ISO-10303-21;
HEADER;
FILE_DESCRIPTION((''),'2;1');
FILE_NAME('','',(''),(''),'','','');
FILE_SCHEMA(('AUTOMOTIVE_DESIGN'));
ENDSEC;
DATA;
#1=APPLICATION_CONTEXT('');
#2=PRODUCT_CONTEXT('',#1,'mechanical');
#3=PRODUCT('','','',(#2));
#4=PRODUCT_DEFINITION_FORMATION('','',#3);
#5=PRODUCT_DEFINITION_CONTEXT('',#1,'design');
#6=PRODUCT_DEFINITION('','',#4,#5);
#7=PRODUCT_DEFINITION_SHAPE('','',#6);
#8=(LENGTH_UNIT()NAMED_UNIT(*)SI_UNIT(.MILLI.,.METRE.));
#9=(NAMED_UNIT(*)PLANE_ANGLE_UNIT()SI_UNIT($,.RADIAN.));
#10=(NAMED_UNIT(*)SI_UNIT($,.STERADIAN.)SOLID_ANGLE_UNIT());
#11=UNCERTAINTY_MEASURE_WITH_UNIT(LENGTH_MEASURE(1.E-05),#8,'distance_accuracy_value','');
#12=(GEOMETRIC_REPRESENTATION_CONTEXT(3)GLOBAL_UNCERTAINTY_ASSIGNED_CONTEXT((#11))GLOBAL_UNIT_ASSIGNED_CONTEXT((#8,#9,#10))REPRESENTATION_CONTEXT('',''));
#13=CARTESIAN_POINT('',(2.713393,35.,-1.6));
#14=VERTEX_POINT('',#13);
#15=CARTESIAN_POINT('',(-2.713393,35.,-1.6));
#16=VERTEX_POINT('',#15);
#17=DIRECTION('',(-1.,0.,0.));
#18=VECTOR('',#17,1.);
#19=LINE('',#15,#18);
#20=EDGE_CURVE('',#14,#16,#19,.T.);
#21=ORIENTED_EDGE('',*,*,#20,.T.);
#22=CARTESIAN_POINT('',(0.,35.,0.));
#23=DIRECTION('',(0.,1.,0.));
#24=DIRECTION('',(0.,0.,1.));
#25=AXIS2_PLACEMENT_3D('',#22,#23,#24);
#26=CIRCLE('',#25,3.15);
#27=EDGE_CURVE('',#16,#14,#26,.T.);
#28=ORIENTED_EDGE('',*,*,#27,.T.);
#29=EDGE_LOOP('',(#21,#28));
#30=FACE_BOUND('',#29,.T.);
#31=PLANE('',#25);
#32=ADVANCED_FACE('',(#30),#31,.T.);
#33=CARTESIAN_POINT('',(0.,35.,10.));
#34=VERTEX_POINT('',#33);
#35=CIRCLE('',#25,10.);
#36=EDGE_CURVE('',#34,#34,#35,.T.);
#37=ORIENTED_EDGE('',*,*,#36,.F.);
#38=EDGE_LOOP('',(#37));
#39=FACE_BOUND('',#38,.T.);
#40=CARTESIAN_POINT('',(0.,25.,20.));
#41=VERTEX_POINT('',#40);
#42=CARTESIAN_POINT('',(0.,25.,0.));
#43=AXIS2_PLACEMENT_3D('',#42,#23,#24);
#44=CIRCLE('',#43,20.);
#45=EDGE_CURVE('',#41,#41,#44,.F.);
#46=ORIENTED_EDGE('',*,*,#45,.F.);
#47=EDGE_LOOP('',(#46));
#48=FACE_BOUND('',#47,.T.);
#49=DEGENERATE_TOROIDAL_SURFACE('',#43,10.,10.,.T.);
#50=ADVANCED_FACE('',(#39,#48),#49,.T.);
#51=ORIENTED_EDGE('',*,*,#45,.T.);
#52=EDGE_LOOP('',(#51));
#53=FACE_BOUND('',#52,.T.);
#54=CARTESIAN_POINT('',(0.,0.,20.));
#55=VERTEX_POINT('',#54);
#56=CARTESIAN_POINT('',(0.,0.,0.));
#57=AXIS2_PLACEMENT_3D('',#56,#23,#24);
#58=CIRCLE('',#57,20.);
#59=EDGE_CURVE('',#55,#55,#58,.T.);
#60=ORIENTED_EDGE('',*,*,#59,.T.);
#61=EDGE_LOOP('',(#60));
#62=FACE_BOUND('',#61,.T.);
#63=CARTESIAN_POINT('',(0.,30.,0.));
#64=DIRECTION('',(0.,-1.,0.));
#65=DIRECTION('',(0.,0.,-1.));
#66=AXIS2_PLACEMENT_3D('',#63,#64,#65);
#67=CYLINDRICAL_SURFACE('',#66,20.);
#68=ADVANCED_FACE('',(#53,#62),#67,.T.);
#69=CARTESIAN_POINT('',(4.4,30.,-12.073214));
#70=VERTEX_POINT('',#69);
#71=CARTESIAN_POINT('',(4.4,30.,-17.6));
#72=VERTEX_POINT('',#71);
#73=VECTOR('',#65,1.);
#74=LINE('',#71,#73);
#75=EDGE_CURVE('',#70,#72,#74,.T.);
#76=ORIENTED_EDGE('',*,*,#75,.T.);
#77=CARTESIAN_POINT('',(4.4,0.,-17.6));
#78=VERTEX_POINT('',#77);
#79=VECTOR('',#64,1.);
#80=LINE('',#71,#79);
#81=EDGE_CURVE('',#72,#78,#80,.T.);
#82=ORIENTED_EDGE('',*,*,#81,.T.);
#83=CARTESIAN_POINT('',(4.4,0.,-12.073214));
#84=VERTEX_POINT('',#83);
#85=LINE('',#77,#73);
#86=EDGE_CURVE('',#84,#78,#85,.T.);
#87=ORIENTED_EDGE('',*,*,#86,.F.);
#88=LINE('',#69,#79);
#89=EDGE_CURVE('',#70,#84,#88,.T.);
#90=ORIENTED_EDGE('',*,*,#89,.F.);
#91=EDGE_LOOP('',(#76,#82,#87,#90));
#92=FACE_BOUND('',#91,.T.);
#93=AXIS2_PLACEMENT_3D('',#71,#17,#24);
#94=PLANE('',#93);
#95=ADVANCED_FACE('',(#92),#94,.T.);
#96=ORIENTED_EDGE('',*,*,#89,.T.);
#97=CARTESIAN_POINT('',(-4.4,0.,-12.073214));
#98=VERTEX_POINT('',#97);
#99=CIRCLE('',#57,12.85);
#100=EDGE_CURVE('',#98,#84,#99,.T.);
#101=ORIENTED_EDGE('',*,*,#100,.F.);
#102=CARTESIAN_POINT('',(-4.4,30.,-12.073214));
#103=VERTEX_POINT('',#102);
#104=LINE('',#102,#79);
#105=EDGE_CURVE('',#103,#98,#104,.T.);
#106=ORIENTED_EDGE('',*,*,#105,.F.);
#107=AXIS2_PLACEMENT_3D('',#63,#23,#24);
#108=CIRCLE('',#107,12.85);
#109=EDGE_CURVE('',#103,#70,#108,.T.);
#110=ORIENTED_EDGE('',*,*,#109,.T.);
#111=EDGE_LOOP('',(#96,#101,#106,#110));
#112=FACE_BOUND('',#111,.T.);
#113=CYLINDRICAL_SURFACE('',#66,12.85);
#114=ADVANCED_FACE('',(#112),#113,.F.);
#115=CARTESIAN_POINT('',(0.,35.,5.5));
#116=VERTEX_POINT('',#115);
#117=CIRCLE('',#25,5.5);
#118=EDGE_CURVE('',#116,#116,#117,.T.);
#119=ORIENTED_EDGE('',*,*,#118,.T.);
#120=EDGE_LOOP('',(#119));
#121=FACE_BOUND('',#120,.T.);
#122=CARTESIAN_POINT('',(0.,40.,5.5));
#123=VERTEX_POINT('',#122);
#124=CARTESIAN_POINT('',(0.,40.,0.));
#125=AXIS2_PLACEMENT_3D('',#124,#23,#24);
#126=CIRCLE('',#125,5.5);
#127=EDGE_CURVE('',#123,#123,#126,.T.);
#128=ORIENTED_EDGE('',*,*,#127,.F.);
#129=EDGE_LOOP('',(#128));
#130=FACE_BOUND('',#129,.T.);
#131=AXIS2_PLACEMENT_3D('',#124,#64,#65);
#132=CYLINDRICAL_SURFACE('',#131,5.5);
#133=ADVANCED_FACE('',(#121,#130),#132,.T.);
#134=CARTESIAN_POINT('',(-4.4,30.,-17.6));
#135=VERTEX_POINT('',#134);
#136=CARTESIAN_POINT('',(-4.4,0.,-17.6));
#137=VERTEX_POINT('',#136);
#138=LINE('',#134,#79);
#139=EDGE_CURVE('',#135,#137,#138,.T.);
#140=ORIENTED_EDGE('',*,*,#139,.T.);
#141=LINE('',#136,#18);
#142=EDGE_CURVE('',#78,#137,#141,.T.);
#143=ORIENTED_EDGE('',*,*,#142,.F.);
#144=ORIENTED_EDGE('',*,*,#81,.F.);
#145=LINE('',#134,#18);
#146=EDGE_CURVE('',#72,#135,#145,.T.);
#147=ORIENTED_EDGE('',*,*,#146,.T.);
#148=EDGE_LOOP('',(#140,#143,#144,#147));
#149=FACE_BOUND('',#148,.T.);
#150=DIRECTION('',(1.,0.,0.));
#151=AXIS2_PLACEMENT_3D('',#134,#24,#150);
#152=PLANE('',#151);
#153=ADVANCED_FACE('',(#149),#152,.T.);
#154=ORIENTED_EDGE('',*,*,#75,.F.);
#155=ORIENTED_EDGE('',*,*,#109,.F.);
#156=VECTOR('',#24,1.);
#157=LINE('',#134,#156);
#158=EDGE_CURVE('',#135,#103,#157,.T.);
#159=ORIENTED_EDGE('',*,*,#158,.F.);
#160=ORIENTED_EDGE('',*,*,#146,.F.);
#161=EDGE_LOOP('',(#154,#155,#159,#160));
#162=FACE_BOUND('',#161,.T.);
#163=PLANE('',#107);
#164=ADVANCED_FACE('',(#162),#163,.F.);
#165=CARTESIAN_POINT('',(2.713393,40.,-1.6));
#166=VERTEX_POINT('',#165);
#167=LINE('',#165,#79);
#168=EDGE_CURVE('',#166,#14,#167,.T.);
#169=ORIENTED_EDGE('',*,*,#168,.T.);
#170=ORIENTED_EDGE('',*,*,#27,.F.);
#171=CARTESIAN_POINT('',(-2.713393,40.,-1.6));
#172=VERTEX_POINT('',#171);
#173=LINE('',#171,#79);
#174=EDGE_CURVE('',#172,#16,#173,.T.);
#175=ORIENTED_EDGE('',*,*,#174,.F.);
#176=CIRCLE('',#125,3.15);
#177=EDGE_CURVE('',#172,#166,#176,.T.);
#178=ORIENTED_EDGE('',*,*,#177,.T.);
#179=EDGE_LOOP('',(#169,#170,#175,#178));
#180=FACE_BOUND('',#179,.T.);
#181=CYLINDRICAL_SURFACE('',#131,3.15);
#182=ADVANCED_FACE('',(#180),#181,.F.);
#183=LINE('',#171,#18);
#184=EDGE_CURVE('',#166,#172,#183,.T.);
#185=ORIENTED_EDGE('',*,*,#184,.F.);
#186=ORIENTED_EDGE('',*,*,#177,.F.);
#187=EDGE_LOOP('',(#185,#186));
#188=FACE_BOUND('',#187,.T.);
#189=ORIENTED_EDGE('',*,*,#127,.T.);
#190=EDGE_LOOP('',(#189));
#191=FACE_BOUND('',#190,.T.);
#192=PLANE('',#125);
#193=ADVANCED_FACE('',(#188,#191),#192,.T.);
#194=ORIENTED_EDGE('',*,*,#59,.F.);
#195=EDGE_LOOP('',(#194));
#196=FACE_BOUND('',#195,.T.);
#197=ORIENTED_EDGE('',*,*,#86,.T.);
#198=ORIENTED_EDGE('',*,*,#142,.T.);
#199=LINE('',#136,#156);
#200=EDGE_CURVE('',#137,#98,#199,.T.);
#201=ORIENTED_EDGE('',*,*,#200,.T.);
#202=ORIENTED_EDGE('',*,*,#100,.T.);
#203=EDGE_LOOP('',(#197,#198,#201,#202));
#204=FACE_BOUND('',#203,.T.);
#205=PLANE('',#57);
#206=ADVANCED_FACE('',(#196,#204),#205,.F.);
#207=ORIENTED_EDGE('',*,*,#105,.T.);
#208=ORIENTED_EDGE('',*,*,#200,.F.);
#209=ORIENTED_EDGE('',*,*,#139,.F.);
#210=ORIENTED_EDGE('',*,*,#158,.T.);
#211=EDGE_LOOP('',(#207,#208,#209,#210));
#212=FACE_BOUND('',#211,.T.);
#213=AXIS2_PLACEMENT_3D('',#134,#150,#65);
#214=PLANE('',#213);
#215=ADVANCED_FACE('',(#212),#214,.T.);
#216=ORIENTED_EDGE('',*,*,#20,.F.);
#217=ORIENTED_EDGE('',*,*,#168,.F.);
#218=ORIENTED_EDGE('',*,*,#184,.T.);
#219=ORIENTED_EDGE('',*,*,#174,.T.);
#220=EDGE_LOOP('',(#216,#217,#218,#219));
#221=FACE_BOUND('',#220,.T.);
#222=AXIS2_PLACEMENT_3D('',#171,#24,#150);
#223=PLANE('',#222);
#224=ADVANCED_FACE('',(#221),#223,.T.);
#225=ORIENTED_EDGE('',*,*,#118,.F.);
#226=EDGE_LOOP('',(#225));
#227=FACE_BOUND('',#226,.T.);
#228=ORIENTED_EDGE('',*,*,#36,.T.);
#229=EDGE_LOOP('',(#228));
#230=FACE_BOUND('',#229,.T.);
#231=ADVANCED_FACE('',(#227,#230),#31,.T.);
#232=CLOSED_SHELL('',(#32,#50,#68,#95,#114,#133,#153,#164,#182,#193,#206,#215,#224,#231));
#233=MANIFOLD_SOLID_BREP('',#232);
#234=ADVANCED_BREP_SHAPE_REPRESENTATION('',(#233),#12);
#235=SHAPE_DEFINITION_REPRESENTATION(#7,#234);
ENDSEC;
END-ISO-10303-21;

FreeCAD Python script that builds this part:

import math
import FreeCAD as App
import Part
import Sketcher

V = App.Vector


def edges_at(feature, points):
    """Names of the edges that pass closest to the given points."""
    edges = feature.Shape.Edges
    near = lambda p: min(range(len(edges)), key=lambda i: edges[i].distToShape(Part.Vertex(*p))[0])
    return sorted({f"Edge{near(p) + 1}" for p in points})

doc = App.newDocument("Part")
params = doc.addObject("Spreadsheet::Sheet", "Params")
for row, (alias, value) in enumerate([
    ("sketch1_diameter", "40 mm"),
    ("sketch1_radius", "12.85 mm"),
    ("sketch1_width", "8.8 mm"),
    ("pad1_length", "30 mm"),
    ("sketch2_diameter", "40 mm"),
    ("pad2_length", "5 mm"),
    ("sketch3_diameter", "11 mm"),
    ("sketch3_radius", "3.15 mm"),
    ("pad3_length", "5 mm"),
    ("fillet_radius", "10 mm"),
], start=1):
    params.set(f"A{row}", alias)
    params.set(f"B{row}", "=" + value)
    params.setAlias(f"B{row}", alias)

body = doc.addObject("PartDesign::Body", "Body")

sketch1 = doc.addObject("Sketcher::SketchObject", "Sketch")
body.addObject(sketch1)
sketch1.AttachmentSupport = (doc.XZ_Plane, [""])
sketch1.MapMode = "FlatFace"
sketch1.addGeometry(Part.Circle(V(0, 0, 0), V(0, 0, 1), 20), False)
sketch1.addGeometry(Part.LineSegment(V(-4, -12, 0), V(-4, -18, 0)), False)
sketch1.addGeometry(Part.LineSegment(V(-4, -18, 0), V(4, -18, 0)), False)
sketch1.addGeometry(Part.LineSegment(V(4, -18, 0), V(4, -12, 0)), False)
sketch1.addGeometry(Part.ArcOfCircle(Part.Circle(V(0, 0, 0), V(0, 0, 1), 13), math.radians(-70), math.radians(250)), False)
sketch1.addConstraint(Sketcher.Constraint("Coincident", 1, 2, 2, 1))
sketch1.addConstraint(Sketcher.Constraint("Coincident", 2, 2, 3, 1))
sketch1.addConstraint(Sketcher.Constraint("Coincident", 3, 2, 4, 1))
sketch1.addConstraint(Sketcher.Constraint("Coincident", 4, 2, 1, 1))
sketch1.addConstraint(Sketcher.Constraint("Vertical", 1))
sketch1.addConstraint(Sketcher.Constraint("Horizontal", 2))
sketch1.addConstraint(Sketcher.Constraint("Vertical", 3))
sketch1.addConstraint(Sketcher.Constraint("Coincident", 0, 3, -1, 1))
sketch1.addConstraint(Sketcher.Constraint("Coincident", 4, 3, -1, 1))
sketch1.addConstraint(Sketcher.Constraint("Horizontal", 3, 2, 4, 2))
sketch1.addConstraint(Sketcher.Constraint("Diameter", 0, 40.0))
sketch1.addConstraint(Sketcher.Constraint("Radius", 4, 12.85))
sketch1.addConstraint(Sketcher.Constraint("DistanceX", 2, 1, 2, 2, 8.8))
sketch1.addConstraint(Sketcher.Constraint("DistanceY", 1, 2, -1, 1, 17.6))
sketch1.setExpression("Constraints[10]", "Params.sketch1_diameter")
sketch1.setExpression("Constraints[11]", "Params.sketch1_radius")
sketch1.setExpression("Constraints[12]", "Params.sketch1_width")
pad1 = doc.addObject("PartDesign::Pad", "Pad")
body.addObject(pad1)
pad1.Profile = sketch1
pad1.setExpression("Length", "Params.pad1_length")
pad1.Reversed = True

sketch2 = doc.addObject("Sketcher::SketchObject", "Sketch001")
body.addObject(sketch2)
sketch2.AttachmentSupport = (doc.XZ_Plane, [""])
sketch2.MapMode = "FlatFace"
sketch2.AttachmentOffset = App.Placement(V(0, 0, -30), App.Rotation())
sketch2.addGeometry(Part.Circle(V(0, 0, 0), V(0, 0, 1), 20), False)
sketch2.addConstraint(Sketcher.Constraint("Coincident", 0, 3, -1, 1))
sketch2.addConstraint(Sketcher.Constraint("Diameter", 0, 40.0))
sketch2.setExpression("Constraints[1]", "Params.sketch2_diameter")
pad2 = doc.addObject("PartDesign::Pad", "Pad001")
body.addObject(pad2)
pad2.Profile = sketch2
pad2.setExpression("Length", "Params.pad2_length")
pad2.Reversed = True

sketch3 = doc.addObject("Sketcher::SketchObject", "Sketch002")
body.addObject(sketch3)
sketch3.AttachmentSupport = (doc.XZ_Plane, [""])
sketch3.MapMode = "FlatFace"
sketch3.AttachmentOffset = App.Placement(V(0, 0, -35), App.Rotation())
sketch3.addGeometry(Part.Circle(V(0, 0, 0), V(0, 0, 1), 5.5), False)
sketch3.addGeometry(Part.ArcOfCircle(Part.Circle(V(0, 0, 0), V(0, 0, 1), 3.1), math.radians(-31), math.radians(211)), False)
sketch3.addGeometry(Part.LineSegment(V(-2.7, -1.6, 0), V(2.7, -1.6, 0)), False)
sketch3.addConstraint(Sketcher.Constraint("Coincident", 1, 1, 2, 2))
sketch3.addConstraint(Sketcher.Constraint("Coincident", 2, 1, 1, 2))
sketch3.addConstraint(Sketcher.Constraint("Horizontal", 2))
sketch3.addConstraint(Sketcher.Constraint("Coincident", 0, 3, -1, 1))
sketch3.addConstraint(Sketcher.Constraint("Coincident", 1, 3, -1, 1))
sketch3.addConstraint(Sketcher.Constraint("Diameter", 0, 11.0))
sketch3.addConstraint(Sketcher.Constraint("Radius", 1, 3.15))
sketch3.addConstraint(Sketcher.Constraint("DistanceY", 1, 1, -1, 1, 1.6))
sketch3.setExpression("Constraints[5]", "Params.sketch3_diameter")
sketch3.setExpression("Constraints[6]", "Params.sketch3_radius")
pad3 = doc.addObject("PartDesign::Pad", "Pad002")
body.addObject(pad3)
pad3.Profile = sketch3
pad3.setExpression("Length", "Params.pad3_length")
pad3.Reversed = True
doc.recompute()

fillet = doc.addObject("PartDesign::Fillet", "Fillet")
body.addObject(fillet)
fillet.Base = (pad3, edges_at(pad3, [(-20, 35, 0)]))
fillet.setExpression("Radius", "Params.fillet_radius")

doc.recompute()
